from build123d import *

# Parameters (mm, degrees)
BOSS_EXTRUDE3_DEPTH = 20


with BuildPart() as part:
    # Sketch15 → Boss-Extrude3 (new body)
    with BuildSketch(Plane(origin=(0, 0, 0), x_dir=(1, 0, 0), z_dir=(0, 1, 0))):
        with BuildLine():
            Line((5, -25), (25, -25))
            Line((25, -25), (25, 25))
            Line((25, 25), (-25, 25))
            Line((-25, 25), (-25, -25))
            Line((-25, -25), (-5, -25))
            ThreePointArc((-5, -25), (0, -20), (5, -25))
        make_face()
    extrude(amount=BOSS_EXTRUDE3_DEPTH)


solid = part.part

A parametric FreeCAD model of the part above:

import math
import FreeCAD as App
import Part
import Sketcher
from FreeCAD import Vector
Q = App.Units.Quantity

doc = App.newDocument("Part")
params = doc.addObject("Spreadsheet::Sheet", "Params")
for row, (alias, value) in enumerate([
    ("sketch1_radius", "5 mm"),
    ("sketch1_width", "20 mm"),
    ("pad1_length", "20 mm"),
], start=1):
    params.set(f"A{row}", alias)
    params.set(f"B{row}", "=" + value)
    params.setAlias(f"B{row}", alias)

body = doc.addObject("PartDesign::Body", "Body")

sketch1 = doc.addObject("Sketcher::SketchObject", "Sketch")
body.addObject(sketch1)
sketch1.AttachmentSupport = (doc.XZ_Plane, [""])
sketch1.MapMode = "FlatFace"
sketch1.addGeometry([
    Part.LineSegment(Vector(5, 25, 0), Vector(25, 25, 0)),
    Part.LineSegment(Vector(25, 25, 0), Vector(25, -25, 0)),
    Part.LineSegment(Vector(25, -25, 0), Vector(-25, -25, 0)),
    Part.LineSegment(Vector(-25, -25, 0), Vector(-25, 25, 0)),
    Part.LineSegment(Vector(-25, 25, 0), Vector(-5, 25, 0)),
    Part.ArcOfCircle(Part.Circle(Vector(0, 25, 0), Vector(0, 0, 1), 5), math.radians(180), math.radians(360)),
], False)
sketch1.addConstraint([
    Sketcher.Constraint("Coincident", 0, 2, 1, 1),
    Sketcher.Constraint("Coincident", 1, 2, 2, 1),
    Sketcher.Constraint("Coincident", 2, 2, 3, 1),
    Sketcher.Constraint("Coincident", 3, 2, 4, 1),
    Sketcher.Constraint("Coincident", 4, 2, 5, 1),
    Sketcher.Constraint("Coincident", 5, 2, 0, 1),
    Sketcher.Constraint("Horizontal", 0),
    Sketcher.Constraint("Vertical", 1),
    Sketcher.Constraint("Horizontal", 2),
    Sketcher.Constraint("Vertical", 3),
    Sketcher.Constraint("Horizontal", 4),
    Sketcher.Constraint("Symmetric", 0, 2, 2, 2, -1, 1),
    Sketcher.Constraint("Symmetric", 4, 2, 5, 2, -2),
    Sketcher.Constraint("Horizontal", 5, 3, 0, 2),
    Sketcher.Constraint("Equal", 2, 1),
    Sketcher.Constraint("Radius", 5, Q("5 mm")),
    Sketcher.Constraint("DistanceX", 0, 1, 0, 2, Q("20 mm")),
])
sketch1.setExpression("Constraints[15]", "Params.sketch1_radius")
sketch1.setExpression("Constraints[16]", "Params.sketch1_width")
pad1 = doc.addObject("PartDesign::Pad", "Pad")
body.addObject(pad1)
pad1.Profile = sketch1
pad1.setExpression("Length", "Params.pad1_length")
pad1.Reversed = True

doc.recompute()
